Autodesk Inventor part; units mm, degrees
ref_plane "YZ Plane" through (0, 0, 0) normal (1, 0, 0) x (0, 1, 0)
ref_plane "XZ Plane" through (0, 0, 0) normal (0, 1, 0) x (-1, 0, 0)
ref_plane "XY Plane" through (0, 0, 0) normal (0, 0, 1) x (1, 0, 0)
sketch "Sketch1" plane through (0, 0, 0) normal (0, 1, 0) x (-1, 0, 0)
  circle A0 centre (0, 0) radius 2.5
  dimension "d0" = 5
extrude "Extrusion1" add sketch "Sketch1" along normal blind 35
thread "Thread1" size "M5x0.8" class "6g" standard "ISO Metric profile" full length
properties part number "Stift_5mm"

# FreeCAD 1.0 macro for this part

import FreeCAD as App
import Part
import Sketcher

doc = App.newDocument("Part")
params = doc.addObject("Spreadsheet::Sheet", "Params")
for row, (alias, value) in enumerate([
    ("sketch1_diameter", "5 mm"),
    ("pad1_length", "35 mm"),
], start=1):
    params.set(f"A{row}", alias)
    params.set(f"B{row}", "=" + value)
    params.setAlias(f"B{row}", alias)

body = doc.addObject("PartDesign::Body", "Body")

# Sketch on XZ plane
sketch1 = body.newObject("Sketcher::SketchObject", "Sketch")
sketch1.AttachmentSupport = (doc.getObject("XZ_Plane"), [""])
sketch1.MapMode = "FlatFace"
sketch1.addGeometry(Part.Circle(App.Vector(0, 0, 0), App.Vector(0, 0, 1), 2.5), False)
sketch1.addConstraint([
    Sketcher.Constraint("Coincident", 0, 3, -1, 1),
    Sketcher.Constraint("Diameter", 0, 5.0),
])
sketch1.setExpression("Constraints[1]", "Params.sketch1_diameter")
pad1 = body.newObject("PartDesign::Pad", "Pad")
pad1.Profile = sketch1
pad1.setExpression("Length", "Params.pad1_length")
pad1.Reversed = True

doc.recompute()
